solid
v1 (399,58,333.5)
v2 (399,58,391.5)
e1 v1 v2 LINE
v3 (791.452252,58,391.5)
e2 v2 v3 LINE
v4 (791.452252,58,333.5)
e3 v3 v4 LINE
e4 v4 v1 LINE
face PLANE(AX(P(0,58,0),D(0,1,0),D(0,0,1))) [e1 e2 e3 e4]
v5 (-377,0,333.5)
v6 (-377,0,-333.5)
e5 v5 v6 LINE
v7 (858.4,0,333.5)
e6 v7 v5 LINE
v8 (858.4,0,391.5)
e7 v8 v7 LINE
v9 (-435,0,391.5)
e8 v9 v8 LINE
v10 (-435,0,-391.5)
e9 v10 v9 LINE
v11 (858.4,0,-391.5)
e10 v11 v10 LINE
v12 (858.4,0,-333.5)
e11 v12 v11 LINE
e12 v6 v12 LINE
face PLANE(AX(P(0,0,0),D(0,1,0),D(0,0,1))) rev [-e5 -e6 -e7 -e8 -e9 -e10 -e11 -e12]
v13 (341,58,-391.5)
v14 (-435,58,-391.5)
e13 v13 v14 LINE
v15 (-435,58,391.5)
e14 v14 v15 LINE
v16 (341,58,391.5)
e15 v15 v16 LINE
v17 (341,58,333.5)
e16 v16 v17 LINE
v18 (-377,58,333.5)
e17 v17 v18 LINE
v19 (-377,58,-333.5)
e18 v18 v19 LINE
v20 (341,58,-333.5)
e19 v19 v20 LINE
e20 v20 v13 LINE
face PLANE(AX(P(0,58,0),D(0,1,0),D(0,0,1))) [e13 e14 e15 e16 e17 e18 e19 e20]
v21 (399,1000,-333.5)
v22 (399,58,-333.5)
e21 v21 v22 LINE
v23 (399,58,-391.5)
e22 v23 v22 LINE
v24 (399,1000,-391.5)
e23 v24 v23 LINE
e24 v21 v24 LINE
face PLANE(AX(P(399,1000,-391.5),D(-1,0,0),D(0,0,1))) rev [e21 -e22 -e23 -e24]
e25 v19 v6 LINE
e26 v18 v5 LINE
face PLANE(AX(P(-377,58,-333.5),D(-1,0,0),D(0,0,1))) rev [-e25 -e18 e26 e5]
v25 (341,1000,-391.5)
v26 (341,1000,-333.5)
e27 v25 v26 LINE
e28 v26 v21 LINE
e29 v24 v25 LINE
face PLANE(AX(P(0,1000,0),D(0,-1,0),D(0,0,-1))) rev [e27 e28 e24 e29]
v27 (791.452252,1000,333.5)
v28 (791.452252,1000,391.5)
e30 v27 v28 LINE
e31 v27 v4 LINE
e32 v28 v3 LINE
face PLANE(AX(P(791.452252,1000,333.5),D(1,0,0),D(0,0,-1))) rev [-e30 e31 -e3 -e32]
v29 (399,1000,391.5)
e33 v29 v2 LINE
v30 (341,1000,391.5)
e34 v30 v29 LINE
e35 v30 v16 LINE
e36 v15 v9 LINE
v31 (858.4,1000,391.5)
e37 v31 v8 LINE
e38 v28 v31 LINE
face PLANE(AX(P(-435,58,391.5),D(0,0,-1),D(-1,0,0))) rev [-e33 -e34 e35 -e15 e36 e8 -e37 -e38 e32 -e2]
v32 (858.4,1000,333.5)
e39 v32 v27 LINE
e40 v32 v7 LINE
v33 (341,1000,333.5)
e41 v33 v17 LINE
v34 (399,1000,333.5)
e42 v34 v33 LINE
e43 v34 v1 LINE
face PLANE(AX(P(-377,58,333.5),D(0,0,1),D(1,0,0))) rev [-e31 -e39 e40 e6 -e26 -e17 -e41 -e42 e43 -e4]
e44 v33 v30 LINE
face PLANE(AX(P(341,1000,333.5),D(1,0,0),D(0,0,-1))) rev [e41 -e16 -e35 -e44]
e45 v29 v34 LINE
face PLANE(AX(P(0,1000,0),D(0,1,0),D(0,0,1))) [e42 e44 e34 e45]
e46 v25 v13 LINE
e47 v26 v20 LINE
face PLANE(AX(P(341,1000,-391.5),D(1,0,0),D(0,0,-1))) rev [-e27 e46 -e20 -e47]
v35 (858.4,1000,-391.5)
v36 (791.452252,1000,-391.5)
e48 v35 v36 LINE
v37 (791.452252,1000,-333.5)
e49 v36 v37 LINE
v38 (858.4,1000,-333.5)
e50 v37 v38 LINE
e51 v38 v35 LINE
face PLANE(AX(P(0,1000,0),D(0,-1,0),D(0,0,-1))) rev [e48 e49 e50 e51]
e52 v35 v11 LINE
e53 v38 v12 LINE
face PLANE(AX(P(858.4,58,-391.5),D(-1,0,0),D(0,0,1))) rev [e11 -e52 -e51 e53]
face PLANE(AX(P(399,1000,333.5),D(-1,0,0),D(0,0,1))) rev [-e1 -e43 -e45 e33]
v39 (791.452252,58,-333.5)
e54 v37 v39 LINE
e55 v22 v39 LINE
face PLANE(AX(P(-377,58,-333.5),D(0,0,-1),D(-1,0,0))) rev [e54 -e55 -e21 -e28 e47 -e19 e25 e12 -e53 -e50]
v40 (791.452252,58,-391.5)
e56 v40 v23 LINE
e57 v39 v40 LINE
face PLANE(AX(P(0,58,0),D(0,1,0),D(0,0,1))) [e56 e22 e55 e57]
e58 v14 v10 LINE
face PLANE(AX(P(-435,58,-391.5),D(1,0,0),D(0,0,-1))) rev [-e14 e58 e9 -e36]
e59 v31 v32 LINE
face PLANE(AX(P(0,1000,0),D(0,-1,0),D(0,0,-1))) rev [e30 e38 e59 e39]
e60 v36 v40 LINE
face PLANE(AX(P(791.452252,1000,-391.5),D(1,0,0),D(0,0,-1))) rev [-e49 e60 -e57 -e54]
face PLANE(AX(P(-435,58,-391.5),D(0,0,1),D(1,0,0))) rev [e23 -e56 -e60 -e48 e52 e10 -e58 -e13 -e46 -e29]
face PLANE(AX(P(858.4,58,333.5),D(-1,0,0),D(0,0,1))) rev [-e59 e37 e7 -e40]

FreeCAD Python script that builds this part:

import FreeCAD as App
import Part
import Sketcher
Q = App.Units.Quantity


def add_polygon(sketch, points):
    """Adds a closed chain of lines whose ends are joined by coincident constraints."""
    first, n = sketch.GeometryCount, len(points)
    for a, b in zip(points, points[1:] + points[:1]):
        sketch.addGeometry(Part.LineSegment(App.Vector(*a, 0), App.Vector(*b, 0)), False)
    for i in range(n):
        sketch.addConstraint(Sketcher.Constraint("Coincident", first + i, 2, first + (i + 1) % n, 1))

doc = App.newDocument("Part")
body = doc.addObject("PartDesign::Body", "Body")

sketch1 = body.newObject("Sketcher::SketchObject", "Sketch")
sketch1.AttachmentSupport = (doc.getObject("XZ_Plane"), [""])
sketch1.MapMode = "FlatFace"
add_polygon(sketch1, [(858, 392), (858, 334), (-377, 334), (-377, -334), (858, -334), (858, -392), (-435, -392), (-435, 392)])
sketch1.addConstraint([
    Sketcher.Constraint("Vertical", 0),
    Sketcher.Constraint("Horizontal", 1),
    Sketcher.Constraint("Vertical", 2),
    Sketcher.Constraint("Horizontal", 3),
    Sketcher.Constraint("Vertical", 4),
    Sketcher.Constraint("Horizontal", 5),
    Sketcher.Constraint("Vertical", 6),
    Sketcher.Constraint("Horizontal", 7),
    Sketcher.Constraint("Symmetric", 0, 2, 3, 2, -1),
    Sketcher.Constraint("Equal", 0, 4),
    Sketcher.Constraint("DistanceY", 0, 2, 0, 1, Q("58 mm")),
    Sketcher.Constraint("DistanceY", 2, 2, 2, 1, Q("667 mm")),
    Sketcher.Constraint("DistanceX", 1, 2, 1, 1, Q("1235.4 mm")),
    Sketcher.Constraint("DistanceX", 5, 2, 5, 1, Q("1293.4 mm")),
    Sketcher.Constraint("DistanceX", 1, 2, -1, 1, Q("377 mm")),
])
pad1 = body.newObject("PartDesign::Pad", "Pad")
pad1.Profile = sketch1
pad1.Length = 58
pad1.Reversed = True

sketch2 = body.newObject("Sketcher::SketchObject", "Sketch001")
sketch2.AttachmentSupport = (doc.getObject("XZ_Plane"), [""])
sketch2.MapMode = "FlatFace"
add_polygon(sketch2, [(341, -392), (341, -334), (399, -334), (399, -392)])
add_polygon(sketch2, [(791, -392), (791, -334), (858, -334), (858, -392)])
add_polygon(sketch2, [(791, 334), (791, 392), (858, 392), (858, 334)])
add_polygon(sketch2, [(341, 334), (341, 392), (399, 392), (399, 334)])
sketch2.addConstraint([
    Sketcher.Constraint("Vertical", 0),
    Sketcher.Constraint("Horizontal", 1),
    Sketcher.Constraint("Vertical", 2),
    Sketcher.Constraint("Horizontal", 3),
    Sketcher.Constraint("Vertical", 4),
    Sketcher.Constraint("Horizontal", 5),
    Sketcher.Constraint("Vertical", 6),
    Sketcher.Constraint("Horizontal", 7),
    Sketcher.Constraint("Vertical", 8),
    Sketcher.Constraint("Horizontal", 9),
    Sketcher.Constraint("Vertical", 10),
    Sketcher.Constraint("Horizontal", 11),
    Sketcher.Constraint("Vertical", 12),
    Sketcher.Constraint("Horizontal", 13),
    Sketcher.Constraint("Vertical", 14),
    Sketcher.Constraint("Horizontal", 15),
    Sketcher.Constraint("Symmetric", 7, 2, 8, 2, -1),
    Sketcher.Constraint("Symmetric", 5, 2, 10, 2, -1),
    Sketcher.Constraint("Symmetric", 3, 2, 12, 2, -1),
    Sketcher.Constraint("Symmetric", 1, 2, 14, 2, -1),
    Sketcher.Constraint("Horizontal", 1, 2, 4, 2),
    Sketcher.Constraint("Horizontal", 3, 2, 6, 2),
    Sketcher.Constraint("Equal", 15, 0),
    Sketcher.Constraint("DistanceX", 1, 1, 1, 2, Q("58 mm")),
    Sketcher.Constraint("DistanceX", -1, 1, 0, 2, Q("341 mm")),
    Sketcher.Constraint("DistanceY", 4, 2, 8, 2, Q("725 mm")),
    Sketcher.Constraint("DistanceX", -1, 1, 5, 2, Q("858.4 mm")),
    Sketcher.Constraint("DistanceX", 5, 1, 5, 2, Q("66.947748 mm")),
])
pad2 = body.newObject("PartDesign::Pad", "Pad001")
pad2.Profile = sketch2
pad2.Length = 1000
pad2.Reversed = True

doc.recompute()
